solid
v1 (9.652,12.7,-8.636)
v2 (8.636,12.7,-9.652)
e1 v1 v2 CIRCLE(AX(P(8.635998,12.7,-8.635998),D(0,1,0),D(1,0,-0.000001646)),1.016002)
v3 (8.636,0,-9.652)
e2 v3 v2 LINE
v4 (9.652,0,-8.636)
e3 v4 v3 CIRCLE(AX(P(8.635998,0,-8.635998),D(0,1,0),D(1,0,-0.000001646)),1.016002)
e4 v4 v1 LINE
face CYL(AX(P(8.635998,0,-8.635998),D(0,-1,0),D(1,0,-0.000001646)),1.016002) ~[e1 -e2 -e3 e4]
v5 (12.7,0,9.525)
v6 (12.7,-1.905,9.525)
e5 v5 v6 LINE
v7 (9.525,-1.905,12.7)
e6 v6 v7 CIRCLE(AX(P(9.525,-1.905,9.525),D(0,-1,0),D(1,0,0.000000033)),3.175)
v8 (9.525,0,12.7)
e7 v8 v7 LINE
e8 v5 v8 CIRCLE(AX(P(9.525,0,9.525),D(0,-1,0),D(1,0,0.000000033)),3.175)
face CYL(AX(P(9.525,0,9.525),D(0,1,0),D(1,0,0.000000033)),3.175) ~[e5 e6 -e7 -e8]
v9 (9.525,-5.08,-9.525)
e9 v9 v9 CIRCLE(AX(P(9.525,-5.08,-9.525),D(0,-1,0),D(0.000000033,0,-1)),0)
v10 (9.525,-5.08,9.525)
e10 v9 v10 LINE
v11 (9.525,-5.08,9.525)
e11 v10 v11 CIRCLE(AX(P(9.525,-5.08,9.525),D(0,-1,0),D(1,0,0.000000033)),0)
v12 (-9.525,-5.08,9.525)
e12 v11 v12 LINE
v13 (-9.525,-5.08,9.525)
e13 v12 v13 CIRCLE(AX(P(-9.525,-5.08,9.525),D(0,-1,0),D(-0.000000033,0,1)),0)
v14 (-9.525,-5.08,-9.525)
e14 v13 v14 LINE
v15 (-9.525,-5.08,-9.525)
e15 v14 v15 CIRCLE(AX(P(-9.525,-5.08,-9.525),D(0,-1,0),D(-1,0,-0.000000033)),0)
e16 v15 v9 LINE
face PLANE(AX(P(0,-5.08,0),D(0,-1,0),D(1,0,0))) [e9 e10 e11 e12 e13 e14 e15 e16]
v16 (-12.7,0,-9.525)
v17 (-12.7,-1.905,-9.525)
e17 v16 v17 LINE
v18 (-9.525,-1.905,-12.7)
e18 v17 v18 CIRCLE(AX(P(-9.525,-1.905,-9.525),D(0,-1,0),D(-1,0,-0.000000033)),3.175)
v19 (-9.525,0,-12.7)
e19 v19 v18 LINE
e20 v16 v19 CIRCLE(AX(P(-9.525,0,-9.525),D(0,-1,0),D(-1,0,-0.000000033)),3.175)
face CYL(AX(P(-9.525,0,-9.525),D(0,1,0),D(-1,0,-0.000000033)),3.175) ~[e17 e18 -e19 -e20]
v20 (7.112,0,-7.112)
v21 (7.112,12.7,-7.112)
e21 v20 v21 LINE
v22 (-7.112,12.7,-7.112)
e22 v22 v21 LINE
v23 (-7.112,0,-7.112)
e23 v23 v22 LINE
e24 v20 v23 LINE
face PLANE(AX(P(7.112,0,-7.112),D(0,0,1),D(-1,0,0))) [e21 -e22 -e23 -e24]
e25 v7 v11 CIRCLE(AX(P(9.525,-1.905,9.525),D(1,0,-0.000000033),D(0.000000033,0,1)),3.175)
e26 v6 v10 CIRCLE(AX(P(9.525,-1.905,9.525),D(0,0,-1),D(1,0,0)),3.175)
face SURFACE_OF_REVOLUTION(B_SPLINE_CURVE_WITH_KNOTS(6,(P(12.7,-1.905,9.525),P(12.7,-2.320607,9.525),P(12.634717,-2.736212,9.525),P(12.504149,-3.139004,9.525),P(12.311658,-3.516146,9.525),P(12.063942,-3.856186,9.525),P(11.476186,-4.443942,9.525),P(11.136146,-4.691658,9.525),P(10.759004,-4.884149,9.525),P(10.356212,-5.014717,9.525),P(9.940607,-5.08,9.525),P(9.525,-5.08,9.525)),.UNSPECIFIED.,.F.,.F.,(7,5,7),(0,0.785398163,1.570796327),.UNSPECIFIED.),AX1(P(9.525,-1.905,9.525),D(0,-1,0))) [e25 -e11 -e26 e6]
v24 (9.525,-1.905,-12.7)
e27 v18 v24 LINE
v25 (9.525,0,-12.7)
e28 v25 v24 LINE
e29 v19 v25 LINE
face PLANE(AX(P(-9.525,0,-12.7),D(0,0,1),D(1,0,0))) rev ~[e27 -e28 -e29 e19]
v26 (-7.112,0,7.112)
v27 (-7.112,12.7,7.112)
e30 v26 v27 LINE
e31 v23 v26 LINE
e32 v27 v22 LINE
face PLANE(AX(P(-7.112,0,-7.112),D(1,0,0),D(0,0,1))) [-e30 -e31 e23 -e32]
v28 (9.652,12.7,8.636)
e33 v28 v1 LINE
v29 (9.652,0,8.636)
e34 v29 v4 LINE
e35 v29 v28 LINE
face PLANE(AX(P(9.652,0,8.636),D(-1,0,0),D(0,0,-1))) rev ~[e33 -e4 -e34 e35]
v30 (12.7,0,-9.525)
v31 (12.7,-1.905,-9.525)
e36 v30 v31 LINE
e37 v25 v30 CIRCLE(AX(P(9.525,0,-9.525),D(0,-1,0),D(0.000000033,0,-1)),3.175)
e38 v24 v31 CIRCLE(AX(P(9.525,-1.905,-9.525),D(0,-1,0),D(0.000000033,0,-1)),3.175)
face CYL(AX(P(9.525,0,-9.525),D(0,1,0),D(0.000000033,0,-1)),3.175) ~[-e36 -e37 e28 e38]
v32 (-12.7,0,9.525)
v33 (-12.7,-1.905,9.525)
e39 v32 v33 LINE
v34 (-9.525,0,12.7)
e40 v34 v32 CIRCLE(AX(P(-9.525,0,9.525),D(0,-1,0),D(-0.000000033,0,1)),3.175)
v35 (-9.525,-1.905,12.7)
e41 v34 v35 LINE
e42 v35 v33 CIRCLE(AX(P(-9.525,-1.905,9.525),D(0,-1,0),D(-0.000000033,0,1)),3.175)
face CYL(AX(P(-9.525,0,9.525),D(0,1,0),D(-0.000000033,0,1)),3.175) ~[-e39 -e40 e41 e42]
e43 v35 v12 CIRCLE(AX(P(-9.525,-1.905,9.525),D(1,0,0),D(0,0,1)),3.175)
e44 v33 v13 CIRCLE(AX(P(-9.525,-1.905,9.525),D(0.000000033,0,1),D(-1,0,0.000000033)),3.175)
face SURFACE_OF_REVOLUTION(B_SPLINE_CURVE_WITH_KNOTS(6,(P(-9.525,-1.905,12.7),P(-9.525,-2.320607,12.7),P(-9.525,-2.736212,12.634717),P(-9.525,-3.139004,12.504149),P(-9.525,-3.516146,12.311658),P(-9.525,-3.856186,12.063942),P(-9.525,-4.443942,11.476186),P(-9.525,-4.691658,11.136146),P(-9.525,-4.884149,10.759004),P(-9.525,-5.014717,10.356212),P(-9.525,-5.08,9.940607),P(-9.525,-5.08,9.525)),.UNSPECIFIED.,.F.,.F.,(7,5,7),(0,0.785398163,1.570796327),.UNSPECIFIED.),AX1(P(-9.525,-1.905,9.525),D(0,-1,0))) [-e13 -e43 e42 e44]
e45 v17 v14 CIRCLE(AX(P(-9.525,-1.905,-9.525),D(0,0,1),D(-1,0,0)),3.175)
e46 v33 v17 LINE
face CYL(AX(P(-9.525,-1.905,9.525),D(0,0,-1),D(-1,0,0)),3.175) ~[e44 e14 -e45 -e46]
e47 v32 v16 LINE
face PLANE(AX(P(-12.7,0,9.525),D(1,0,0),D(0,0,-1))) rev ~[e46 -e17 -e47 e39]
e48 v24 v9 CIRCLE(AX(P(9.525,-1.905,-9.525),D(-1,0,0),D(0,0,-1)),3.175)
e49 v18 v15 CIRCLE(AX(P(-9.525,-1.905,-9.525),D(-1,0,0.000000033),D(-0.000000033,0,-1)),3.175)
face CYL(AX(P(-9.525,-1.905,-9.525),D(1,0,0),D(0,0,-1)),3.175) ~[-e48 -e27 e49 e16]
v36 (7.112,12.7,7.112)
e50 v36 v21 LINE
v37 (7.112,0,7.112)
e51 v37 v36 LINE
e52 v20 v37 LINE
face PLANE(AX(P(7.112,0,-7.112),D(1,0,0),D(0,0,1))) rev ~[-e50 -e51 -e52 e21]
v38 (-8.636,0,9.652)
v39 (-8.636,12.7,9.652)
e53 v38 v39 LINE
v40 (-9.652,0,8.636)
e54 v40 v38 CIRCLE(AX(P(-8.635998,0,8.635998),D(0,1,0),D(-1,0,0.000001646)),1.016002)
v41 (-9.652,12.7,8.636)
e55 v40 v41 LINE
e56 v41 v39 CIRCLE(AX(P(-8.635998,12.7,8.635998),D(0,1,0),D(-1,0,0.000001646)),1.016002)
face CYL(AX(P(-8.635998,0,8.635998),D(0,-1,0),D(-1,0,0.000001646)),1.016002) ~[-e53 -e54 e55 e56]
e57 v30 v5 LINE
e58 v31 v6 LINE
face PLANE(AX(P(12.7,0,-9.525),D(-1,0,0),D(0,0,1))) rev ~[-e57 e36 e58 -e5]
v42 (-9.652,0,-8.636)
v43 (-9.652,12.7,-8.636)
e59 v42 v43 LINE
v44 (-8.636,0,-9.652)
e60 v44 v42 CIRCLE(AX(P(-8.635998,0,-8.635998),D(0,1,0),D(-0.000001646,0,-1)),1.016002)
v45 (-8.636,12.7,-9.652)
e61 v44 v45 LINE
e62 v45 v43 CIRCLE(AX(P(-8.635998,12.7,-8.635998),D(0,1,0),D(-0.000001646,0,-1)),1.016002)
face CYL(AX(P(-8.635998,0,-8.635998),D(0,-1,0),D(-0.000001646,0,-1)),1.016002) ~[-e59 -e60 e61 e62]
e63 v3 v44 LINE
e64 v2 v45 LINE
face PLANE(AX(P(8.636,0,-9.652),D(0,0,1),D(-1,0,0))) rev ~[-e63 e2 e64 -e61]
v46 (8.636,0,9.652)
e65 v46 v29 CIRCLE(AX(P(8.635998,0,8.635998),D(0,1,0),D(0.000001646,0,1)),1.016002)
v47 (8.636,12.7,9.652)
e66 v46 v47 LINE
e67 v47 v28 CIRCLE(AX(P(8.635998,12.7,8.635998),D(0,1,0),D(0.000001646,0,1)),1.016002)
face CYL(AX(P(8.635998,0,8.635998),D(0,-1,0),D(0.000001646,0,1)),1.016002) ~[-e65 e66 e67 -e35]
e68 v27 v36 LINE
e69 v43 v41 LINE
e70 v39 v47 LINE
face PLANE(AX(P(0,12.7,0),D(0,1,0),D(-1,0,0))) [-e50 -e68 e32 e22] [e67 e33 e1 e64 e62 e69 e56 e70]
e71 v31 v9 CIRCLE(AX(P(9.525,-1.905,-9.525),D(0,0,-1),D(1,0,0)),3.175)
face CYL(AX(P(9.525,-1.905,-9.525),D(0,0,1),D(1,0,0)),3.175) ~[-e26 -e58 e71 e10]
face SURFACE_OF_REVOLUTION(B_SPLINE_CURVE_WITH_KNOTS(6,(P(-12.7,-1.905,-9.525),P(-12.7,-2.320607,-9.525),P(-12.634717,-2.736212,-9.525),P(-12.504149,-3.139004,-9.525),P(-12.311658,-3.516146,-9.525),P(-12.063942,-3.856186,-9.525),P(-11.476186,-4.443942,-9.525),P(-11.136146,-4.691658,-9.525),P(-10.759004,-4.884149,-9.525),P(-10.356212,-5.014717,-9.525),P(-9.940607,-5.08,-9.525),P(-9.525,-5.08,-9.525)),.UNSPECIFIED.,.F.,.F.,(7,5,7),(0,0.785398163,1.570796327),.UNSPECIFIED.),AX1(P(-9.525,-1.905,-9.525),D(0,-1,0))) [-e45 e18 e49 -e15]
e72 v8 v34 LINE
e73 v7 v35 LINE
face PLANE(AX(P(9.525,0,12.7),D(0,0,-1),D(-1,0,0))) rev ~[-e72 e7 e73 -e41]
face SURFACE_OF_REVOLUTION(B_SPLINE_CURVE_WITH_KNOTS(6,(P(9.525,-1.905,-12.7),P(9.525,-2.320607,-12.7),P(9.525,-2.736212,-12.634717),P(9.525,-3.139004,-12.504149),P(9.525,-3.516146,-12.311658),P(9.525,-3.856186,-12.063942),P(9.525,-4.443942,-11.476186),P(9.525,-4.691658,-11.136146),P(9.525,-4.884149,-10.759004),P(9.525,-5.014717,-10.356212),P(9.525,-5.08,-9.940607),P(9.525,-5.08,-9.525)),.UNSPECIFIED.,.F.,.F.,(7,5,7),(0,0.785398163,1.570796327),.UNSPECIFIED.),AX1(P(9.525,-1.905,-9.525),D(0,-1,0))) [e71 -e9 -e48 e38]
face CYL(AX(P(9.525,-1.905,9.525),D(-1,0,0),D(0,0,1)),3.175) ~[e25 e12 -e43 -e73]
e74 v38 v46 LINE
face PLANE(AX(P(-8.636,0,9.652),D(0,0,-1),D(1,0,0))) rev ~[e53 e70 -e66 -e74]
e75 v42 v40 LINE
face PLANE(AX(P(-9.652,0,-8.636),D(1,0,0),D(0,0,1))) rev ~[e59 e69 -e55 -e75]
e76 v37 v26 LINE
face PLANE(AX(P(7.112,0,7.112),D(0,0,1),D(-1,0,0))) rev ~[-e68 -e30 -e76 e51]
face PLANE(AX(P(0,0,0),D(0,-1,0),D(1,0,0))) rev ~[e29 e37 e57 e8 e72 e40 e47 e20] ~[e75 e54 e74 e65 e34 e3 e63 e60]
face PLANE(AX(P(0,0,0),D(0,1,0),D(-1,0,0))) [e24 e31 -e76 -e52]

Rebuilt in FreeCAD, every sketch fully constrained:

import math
import FreeCAD as App
import Part
import Sketcher
Q = App.Units.Quantity


def edges_at(feature, points):
    """Names of the edges that pass closest to the given points."""
    edges = feature.Shape.Edges
    near = lambda p: min(range(len(edges)), key=lambda i: edges[i].distToShape(Part.Vertex(*p))[0])
    return sorted({f"Edge{near(p) + 1}" for p in points})


def add_polygon(sketch, points):
    """Adds a closed chain of lines whose ends are joined by coincident constraints."""
    first, n = sketch.GeometryCount, len(points)
    for a, b in zip(points, points[1:] + points[:1]):
        sketch.addGeometry(Part.LineSegment(App.Vector(*a, 0), App.Vector(*b, 0)), False)
    for i in range(n):
        sketch.addConstraint(Sketcher.Constraint("Coincident", first + i, 2, first + (i + 1) % n, 1))

doc = App.newDocument("Part")
body = doc.addObject("PartDesign::Body", "Body")

# Sketch on XZ plane
sketch1 = doc.addObject("Sketcher::SketchObject", "Sketch")
body.addObject(sketch1)
sketch1.AttachmentSupport = (doc.XZ_Plane, [""])
sketch1.MapMode = "FlatFace"
sketch1.addGeometry([
    Part.LineSegment(App.Vector(9.5, 12.7, 0), App.Vector(-9.5, 12.7, 0)),  # 0
    Part.ArcOfCircle(Part.Circle(App.Vector(-9.5, 9.5, 0), App.Vector(0, 0, 1), 3.2), math.radians(90), math.radians(180)),  # 1
    Part.LineSegment(App.Vector(-12.7, 9.5, 0), App.Vector(-12.7, -9.5, 0)),  # 2
    Part.ArcOfCircle(Part.Circle(App.Vector(-9.5, -9.5, 0), App.Vector(0, 0, 1), 3.2), math.radians(-180), math.radians(-90)),  # 3
    Part.LineSegment(App.Vector(-9.5, -12.7, 0), App.Vector(9.5, -12.7, 0)),  # 4
    Part.ArcOfCircle(Part.Circle(App.Vector(9.5, -9.5, 0), App.Vector(0, 0, 1), 3.2), math.radians(-90), math.radians(0)),  # 5
    Part.LineSegment(App.Vector(12.7, -9.5, 0), App.Vector(12.7, 9.5, 0)),  # 6
    Part.ArcOfCircle(Part.Circle(App.Vector(9.5, 9.5, 0), App.Vector(0, 0, 1), 3.2), math.radians(0), math.radians(90)),  # 7
], False)
sketch1.addConstraint([
    Sketcher.Constraint("Tangent", 0, 2, 1, 1),
    Sketcher.Constraint("Tangent", 1, 2, 2, 1),
    Sketcher.Constraint("Tangent", 2, 2, 3, 1),
    Sketcher.Constraint("Tangent", 3, 2, 4, 1),
    Sketcher.Constraint("Tangent", 4, 2, 5, 1),
    Sketcher.Constraint("Tangent", 5, 2, 6, 1),
    Sketcher.Constraint("Tangent", 6, 2, 7, 1),
    Sketcher.Constraint("Tangent", 7, 2, 0, 1),
    Sketcher.Constraint("Horizontal", 0),
    Sketcher.Constraint("Vertical", 2),
    Sketcher.Constraint("Horizontal", 4),
    Sketcher.Constraint("Vertical", 6),
    Sketcher.Constraint("Equal", 1, 3),
    Sketcher.Constraint("Equal", 3, 5),
    Sketcher.Constraint("Equal", 5, 7),
    Sketcher.Constraint("Symmetric", 1, 3, 5, 3, -1, 1),
    Sketcher.Constraint("Equal", 4, 2),
    Sketcher.Constraint("Radius", 1, Q("0.125 in")),
    Sketcher.Constraint("DistanceX", 0, 2, 0, 1, Q("0.75 in")),
])
pad1 = doc.addObject("PartDesign::Pad", "Pad")
body.addObject(pad1)
pad1.Profile = sketch1
pad1.Length = Q("0.2 in")
doc.recompute()

fillet = doc.addObject("PartDesign::Fillet", "Fillet")
body.addObject(fillet)
fillet.Base = (pad1, edges_at(pad1, [(12.7, -5.08, 0)]))
fillet.Radius = Q("0.125 in")

# Sketch on XZ plane
sketch2 = doc.addObject("Sketcher::SketchObject", "Sketch001")
body.addObject(sketch2)
sketch2.AttachmentSupport = (doc.XZ_Plane, [""])
sketch2.MapMode = "FlatFace"
sketch2.addGeometry([
    Part.ArcOfCircle(Part.Circle(App.Vector(-8.6, 8.6, 0), App.Vector(0, 0, 1), 1), math.radians(90), math.radians(180)),  # 0
    Part.LineSegment(App.Vector(-8.6, 9.7, 0), App.Vector(8.6, 9.7, 0)),  # 1
    Part.ArcOfCircle(Part.Circle(App.Vector(8.6, 8.6, 0), App.Vector(0, 0, 1), 1), math.radians(0), math.radians(90)),  # 2
    Part.LineSegment(App.Vector(9.7, 8.6, 0), App.Vector(9.7, -8.6, 0)),  # 3
    Part.ArcOfCircle(Part.Circle(App.Vector(8.6, -8.6, 0), App.Vector(0, 0, 1), 1), math.radians(-90), math.radians(0)),  # 4
    Part.LineSegment(App.Vector(8.6, -9.7, 0), App.Vector(-8.6, -9.7, 0)),  # 5
    Part.ArcOfCircle(Part.Circle(App.Vector(-8.6, -8.6, 0), App.Vector(0, 0, 1), 1), math.radians(-180), math.radians(-90)),  # 6
    Part.LineSegment(App.Vector(-9.7, -8.6, 0), App.Vector(-9.7, 8.6, 0)),  # 7
], False)
sketch2.addConstraint([
    Sketcher.Constraint("Tangent", 0, 1, 1, 1),
    Sketcher.Constraint("Tangent", 1, 2, 2, 2),
    Sketcher.Constraint("Tangent", 2, 1, 3, 1),
    Sketcher.Constraint("Tangent", 3, 2, 4, 2),
    Sketcher.Constraint("Tangent", 4, 1, 5, 1),
    Sketcher.Constraint("Tangent", 5, 2, 6, 2),
    Sketcher.Constraint("Tangent", 6, 1, 7, 1),
    Sketcher.Constraint("Tangent", 7, 2, 0, 2),
    Sketcher.Constraint("Horizontal", 1),
    Sketcher.Constraint("Vertical", 3),
    Sketcher.Constraint("Horizontal", 5),
    Sketcher.Constraint("Vertical", 7),
    Sketcher.Constraint("Equal", 0, 2),
    Sketcher.Constraint("Equal", 2, 4),
    Sketcher.Constraint("Equal", 4, 6),
    Sketcher.Constraint("Symmetric", 0, 3, 4, 3, -1, 1),
    Sketcher.Constraint("Equal", 5, 3),
    Sketcher.Constraint("Radius", 0, Q("0.0400001 in")),
    Sketcher.Constraint("DistanceX", 1, 1, 1, 2, Q("0.68 in")),
])
pad2 = doc.addObject("PartDesign::Pad", "Pad001")
body.addObject(pad2)
pad2.Profile = sketch2
pad2.Length = Q("0.5 in")
pad2.Reversed = True

# Sketch on XZ plane
sketch3 = doc.addObject("Sketcher::SketchObject", "Sketch002")
body.addObject(sketch3)
sketch3.AttachmentSupport = (doc.XZ_Plane, [""])
sketch3.MapMode = "FlatFace"
add_polygon(sketch3, [(7, 7), (7, -7), (-7, -7), (-7, 7)])  # lines 0-3
sketch3.addConstraint([
    Sketcher.Constraint("Vertical", 0),
    Sketcher.Constraint("Horizontal", 1),
    Sketcher.Constraint("Vertical", 2),
    Sketcher.Constraint("Horizontal", 3),
    Sketcher.Constraint("Symmetric", 0, 2, 2, 2, -1, 1),
    Sketcher.Constraint("Equal", 3, 0),
    Sketcher.Constraint("DistanceX", 1, 2, 1, 1, Q("0.56 in")),
])
pocket1 = doc.addObject("PartDesign::Pocket", "Pocket")
body.addObject(pocket1)
pocket1.Profile = sketch3
pocket1.Length = Q("1.721 in")

doc.recompute()
